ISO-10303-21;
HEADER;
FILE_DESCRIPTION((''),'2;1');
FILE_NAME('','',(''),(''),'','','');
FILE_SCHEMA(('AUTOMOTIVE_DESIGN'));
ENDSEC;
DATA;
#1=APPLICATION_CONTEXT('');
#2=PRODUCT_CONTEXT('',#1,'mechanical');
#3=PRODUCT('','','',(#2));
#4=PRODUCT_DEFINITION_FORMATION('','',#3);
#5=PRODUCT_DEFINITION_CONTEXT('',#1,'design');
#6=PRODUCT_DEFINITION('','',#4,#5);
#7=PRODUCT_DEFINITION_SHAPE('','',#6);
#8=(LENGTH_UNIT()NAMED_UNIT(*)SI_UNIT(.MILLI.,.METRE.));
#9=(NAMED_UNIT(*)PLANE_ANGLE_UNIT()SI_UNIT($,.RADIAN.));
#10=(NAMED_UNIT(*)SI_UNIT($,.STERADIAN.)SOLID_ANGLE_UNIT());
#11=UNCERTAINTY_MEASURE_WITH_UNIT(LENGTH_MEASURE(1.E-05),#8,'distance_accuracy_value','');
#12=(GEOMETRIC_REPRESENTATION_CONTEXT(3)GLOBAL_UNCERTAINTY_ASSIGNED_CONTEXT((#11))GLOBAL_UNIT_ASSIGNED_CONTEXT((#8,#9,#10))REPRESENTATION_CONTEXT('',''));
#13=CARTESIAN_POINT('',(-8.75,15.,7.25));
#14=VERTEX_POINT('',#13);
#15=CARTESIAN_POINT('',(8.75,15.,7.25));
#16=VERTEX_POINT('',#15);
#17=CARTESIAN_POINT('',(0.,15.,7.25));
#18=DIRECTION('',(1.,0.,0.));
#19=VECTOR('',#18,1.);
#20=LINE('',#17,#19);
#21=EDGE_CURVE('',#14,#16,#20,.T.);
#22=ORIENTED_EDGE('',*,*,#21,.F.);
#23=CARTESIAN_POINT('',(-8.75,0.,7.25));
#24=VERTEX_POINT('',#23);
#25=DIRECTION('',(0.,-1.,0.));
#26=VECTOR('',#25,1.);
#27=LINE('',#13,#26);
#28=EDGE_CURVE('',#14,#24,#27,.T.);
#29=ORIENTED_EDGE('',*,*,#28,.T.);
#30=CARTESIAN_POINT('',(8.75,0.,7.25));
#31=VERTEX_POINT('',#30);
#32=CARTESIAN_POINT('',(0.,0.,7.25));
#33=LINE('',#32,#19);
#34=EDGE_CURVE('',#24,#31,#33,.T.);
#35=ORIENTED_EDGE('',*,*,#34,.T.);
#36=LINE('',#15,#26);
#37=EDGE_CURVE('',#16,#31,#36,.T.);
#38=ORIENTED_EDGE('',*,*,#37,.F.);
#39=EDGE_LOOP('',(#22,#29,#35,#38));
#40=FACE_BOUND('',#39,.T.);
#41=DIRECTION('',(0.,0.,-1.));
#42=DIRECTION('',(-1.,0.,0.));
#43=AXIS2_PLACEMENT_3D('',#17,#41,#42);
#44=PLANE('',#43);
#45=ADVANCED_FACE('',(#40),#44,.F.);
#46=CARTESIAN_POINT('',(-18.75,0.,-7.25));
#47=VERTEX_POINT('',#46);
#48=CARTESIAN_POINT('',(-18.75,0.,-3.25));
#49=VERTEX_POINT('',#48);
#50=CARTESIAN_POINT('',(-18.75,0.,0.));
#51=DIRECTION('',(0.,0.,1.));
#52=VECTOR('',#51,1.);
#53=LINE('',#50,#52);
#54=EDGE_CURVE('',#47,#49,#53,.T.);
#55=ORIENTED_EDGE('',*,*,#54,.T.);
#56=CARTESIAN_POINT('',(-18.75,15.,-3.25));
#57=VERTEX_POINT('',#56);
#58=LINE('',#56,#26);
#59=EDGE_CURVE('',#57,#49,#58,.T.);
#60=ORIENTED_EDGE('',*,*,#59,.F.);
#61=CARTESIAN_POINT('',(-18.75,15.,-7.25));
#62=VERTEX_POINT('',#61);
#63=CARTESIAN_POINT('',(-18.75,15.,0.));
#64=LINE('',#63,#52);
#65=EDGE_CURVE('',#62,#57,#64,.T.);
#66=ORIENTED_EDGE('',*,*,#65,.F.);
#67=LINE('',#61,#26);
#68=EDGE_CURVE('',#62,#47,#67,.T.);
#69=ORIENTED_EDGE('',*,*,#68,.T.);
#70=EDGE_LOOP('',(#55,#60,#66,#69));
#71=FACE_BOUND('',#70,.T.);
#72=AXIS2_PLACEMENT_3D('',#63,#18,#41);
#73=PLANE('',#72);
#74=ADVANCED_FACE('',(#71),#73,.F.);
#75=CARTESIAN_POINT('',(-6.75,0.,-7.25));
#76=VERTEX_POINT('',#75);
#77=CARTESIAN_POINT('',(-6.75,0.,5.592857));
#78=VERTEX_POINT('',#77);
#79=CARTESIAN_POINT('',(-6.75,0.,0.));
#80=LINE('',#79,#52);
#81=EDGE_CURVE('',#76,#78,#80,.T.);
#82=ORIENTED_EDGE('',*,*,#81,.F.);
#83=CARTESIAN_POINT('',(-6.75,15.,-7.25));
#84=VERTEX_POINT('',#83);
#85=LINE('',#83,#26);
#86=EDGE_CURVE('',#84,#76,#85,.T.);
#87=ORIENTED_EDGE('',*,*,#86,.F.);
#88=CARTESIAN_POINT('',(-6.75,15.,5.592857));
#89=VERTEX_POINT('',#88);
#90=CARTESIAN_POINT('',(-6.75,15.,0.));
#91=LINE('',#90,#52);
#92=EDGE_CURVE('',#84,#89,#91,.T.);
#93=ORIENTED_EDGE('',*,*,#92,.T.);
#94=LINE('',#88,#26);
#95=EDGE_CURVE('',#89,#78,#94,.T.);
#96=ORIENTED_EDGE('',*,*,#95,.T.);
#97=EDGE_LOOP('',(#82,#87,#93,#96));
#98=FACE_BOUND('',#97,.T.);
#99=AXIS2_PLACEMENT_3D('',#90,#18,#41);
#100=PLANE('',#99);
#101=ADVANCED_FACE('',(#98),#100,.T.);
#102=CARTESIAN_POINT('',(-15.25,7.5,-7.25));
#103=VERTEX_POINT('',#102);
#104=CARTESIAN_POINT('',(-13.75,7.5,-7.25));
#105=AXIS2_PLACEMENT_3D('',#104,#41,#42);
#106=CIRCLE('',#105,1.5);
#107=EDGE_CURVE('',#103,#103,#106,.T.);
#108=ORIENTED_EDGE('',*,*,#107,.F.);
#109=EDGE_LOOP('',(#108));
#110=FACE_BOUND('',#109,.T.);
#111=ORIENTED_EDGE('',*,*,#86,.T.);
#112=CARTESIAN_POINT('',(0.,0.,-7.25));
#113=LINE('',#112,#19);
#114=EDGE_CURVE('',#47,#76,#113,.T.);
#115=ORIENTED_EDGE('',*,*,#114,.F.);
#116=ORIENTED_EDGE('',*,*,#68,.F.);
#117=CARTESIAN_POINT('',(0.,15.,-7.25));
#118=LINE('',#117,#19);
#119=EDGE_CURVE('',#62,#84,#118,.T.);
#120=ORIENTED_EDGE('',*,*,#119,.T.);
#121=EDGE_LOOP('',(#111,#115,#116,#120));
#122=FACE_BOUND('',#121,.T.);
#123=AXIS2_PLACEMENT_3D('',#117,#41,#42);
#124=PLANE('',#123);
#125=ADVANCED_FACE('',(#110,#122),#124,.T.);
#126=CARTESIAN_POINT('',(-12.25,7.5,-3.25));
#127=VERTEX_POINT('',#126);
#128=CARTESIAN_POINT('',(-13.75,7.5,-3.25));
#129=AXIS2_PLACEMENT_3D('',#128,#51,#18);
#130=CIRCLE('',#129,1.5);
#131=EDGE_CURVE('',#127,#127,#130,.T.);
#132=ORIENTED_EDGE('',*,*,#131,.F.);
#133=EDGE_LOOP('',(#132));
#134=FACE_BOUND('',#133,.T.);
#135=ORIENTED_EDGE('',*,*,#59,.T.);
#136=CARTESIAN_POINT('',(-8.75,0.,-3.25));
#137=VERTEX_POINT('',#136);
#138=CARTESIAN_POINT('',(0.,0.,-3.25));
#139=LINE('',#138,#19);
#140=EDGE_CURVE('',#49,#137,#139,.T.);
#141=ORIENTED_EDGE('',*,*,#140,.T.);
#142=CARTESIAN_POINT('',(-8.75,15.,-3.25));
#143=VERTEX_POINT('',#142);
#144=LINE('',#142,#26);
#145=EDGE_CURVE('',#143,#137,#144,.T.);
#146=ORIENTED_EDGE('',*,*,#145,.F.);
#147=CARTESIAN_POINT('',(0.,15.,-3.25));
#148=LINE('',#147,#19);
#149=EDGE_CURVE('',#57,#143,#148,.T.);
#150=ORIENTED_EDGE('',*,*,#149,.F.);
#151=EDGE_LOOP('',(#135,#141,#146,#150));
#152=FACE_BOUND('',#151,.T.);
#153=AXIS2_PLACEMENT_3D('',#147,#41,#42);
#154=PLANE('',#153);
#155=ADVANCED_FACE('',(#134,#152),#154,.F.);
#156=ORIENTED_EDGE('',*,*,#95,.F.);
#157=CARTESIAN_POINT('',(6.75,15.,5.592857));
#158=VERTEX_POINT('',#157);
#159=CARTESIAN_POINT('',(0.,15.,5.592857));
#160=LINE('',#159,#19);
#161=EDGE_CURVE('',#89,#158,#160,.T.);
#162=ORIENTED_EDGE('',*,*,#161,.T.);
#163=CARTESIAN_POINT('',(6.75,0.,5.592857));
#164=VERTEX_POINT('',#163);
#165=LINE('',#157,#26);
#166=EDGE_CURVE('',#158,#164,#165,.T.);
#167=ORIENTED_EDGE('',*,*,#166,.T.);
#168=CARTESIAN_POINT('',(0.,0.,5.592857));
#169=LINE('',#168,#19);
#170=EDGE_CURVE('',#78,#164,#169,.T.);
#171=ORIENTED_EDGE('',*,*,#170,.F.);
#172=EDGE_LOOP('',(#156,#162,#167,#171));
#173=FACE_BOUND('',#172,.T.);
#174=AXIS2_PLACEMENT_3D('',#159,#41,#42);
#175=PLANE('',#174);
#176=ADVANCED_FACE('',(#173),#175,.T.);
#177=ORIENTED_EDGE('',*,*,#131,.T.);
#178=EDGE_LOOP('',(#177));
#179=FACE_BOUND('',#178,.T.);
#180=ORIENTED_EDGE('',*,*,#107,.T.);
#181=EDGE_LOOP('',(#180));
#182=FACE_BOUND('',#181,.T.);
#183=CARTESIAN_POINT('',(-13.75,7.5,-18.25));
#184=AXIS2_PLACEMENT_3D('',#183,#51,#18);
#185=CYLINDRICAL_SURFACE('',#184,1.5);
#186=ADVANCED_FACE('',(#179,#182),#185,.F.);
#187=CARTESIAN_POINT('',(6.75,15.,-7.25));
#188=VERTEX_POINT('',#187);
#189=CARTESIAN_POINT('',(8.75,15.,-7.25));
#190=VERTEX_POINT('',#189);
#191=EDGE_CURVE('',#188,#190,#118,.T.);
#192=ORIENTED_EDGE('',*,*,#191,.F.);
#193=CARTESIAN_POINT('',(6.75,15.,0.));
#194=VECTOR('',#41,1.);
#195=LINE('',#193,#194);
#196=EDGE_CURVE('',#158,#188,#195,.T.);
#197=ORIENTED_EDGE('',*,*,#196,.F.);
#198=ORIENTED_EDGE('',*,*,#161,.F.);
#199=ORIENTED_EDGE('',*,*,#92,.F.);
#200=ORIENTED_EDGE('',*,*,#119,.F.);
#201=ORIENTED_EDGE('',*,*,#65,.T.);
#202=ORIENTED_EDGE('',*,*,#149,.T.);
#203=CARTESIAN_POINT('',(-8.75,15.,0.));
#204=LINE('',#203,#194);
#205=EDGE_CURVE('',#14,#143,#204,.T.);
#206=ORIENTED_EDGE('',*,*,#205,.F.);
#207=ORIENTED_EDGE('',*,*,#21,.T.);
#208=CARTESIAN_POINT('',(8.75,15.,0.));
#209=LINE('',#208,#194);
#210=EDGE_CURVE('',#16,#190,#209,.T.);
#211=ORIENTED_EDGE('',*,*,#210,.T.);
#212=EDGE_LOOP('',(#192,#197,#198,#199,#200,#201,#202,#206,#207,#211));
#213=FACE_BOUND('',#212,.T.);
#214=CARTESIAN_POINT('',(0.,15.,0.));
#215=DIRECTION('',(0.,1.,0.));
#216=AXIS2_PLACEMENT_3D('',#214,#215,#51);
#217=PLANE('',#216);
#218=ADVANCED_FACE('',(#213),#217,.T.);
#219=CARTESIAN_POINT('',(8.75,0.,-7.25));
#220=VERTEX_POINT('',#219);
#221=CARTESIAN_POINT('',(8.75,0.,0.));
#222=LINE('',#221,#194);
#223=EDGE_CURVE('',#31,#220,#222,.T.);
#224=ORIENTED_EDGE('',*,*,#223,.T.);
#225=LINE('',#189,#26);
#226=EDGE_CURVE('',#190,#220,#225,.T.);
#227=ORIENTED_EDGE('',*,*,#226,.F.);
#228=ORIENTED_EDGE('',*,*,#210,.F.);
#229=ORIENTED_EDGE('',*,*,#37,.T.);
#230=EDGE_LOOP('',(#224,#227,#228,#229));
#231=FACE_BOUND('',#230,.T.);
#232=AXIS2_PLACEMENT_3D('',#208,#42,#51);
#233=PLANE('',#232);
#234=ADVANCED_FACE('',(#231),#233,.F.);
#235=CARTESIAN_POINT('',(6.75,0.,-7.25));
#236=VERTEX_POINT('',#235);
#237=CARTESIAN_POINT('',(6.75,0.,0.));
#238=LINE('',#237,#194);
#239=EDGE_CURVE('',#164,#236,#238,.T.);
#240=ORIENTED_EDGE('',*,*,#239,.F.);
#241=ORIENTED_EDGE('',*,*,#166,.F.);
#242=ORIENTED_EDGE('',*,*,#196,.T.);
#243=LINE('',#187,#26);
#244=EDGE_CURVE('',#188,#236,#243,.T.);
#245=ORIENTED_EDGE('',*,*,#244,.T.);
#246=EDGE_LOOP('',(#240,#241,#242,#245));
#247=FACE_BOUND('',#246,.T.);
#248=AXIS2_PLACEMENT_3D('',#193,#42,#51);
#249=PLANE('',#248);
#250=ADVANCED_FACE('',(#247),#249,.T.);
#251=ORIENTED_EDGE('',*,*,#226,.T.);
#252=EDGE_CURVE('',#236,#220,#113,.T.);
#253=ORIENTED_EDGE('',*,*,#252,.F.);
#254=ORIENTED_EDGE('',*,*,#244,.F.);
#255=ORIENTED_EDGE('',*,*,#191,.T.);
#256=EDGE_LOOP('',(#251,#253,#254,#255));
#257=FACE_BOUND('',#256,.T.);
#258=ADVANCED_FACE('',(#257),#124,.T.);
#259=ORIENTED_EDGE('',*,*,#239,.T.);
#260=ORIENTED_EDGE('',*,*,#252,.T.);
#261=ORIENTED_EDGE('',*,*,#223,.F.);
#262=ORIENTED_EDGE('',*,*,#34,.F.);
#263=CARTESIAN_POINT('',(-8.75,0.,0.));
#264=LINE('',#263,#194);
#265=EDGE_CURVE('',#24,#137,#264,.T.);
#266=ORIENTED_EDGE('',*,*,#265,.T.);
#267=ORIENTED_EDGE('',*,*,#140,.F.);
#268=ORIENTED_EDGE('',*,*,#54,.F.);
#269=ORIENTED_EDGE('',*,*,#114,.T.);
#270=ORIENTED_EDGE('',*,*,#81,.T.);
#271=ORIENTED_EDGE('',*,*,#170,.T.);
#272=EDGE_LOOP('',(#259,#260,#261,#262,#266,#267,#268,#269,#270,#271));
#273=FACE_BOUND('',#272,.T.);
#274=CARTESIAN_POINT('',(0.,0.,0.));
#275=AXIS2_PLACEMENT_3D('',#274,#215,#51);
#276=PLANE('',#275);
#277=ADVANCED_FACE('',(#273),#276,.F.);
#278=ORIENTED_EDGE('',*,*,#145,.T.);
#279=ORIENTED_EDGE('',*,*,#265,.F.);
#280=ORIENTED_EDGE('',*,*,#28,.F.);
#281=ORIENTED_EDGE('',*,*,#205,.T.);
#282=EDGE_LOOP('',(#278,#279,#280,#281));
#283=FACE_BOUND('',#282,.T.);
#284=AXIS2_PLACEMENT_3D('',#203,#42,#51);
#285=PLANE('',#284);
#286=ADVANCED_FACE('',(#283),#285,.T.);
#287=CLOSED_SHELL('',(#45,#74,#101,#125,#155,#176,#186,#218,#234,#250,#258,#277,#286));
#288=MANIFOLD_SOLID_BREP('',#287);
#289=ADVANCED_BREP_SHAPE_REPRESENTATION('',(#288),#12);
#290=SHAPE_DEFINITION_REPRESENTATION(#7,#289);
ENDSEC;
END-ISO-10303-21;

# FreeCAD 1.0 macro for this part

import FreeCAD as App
import Part
import Sketcher

V = App.Vector


def add_polygon(sketch, points):
    """Adds a closed chain of lines whose ends are joined by coincident constraints."""
    first, n = sketch.GeometryCount, len(points)
    for a, b in zip(points, points[1:] + points[:1]):
        sketch.addGeometry(Part.LineSegment(App.Vector(*a, 0), App.Vector(*b, 0)), False)
    for i in range(n):
        sketch.addConstraint(Sketcher.Constraint("Coincident", first + i, 2, first + (i + 1) % n, 1))

doc = App.newDocument("Part")
body = doc.addObject("PartDesign::Body", "Body")

# Sketch on XZ plane
sketch1 = body.newObject("Sketcher::SketchObject", "Sketch")
sketch1.AttachmentSupport = (doc.getObject("XZ_Plane"), [""])
sketch1.MapMode = "FlatFace"
add_polygon(sketch1, [(-8.75, 7.25), (8.75, 7.25), (8.75, -7.25), (6.75, -7.25), (6.75, 5.592857), (-6.75, 5.592857), (-6.75, -7.25), (-18.75, -7.25), (-18.75, -3.25), (-8.75, -3.25)])  # lines 0-9
sketch1.addConstraint(Sketcher.Constraint("Horizontal", 0))
sketch1.addConstraint(Sketcher.Constraint("Vertical", 1))
sketch1.addConstraint(Sketcher.Constraint("Horizontal", 2))
sketch1.addConstraint(Sketcher.Constraint("Vertical", 3))
sketch1.addConstraint(Sketcher.Constraint("Horizontal", 4))
sketch1.addConstraint(Sketcher.Constraint("Vertical", 5))
sketch1.addConstraint(Sketcher.Constraint("Horizontal", 6))
sketch1.addConstraint(Sketcher.Constraint("Vertical", 7))
sketch1.addConstraint(Sketcher.Constraint("Horizontal", 8))
sketch1.addConstraint(Sketcher.Constraint("Vertical", 9))
sketch1.addConstraint(Sketcher.Constraint("Symmetric", 1, 2, 9, 2, -1, 1))
sketch1.addConstraint(Sketcher.Constraint("Symmetric", 2, 2, 5, 2, -2))
sketch1.addConstraint(Sketcher.Constraint("DistanceX", 2, 2, 2, 1, 2.0))
sketch1.addConstraint(Sketcher.Constraint("DistanceX", 6, 2, 6, 1, 12.0))
sketch1.addConstraint(Sketcher.Constraint("DistanceY", 7, 1, 7, 2, 4.0))
sketch1.addConstraint(Sketcher.Constraint("DistanceX", 0, 1, 0, 2, 17.5))
sketch1.addConstraint(Sketcher.Constraint("DistanceY", 1, 2, 1, 1, 14.5))
sketch1.addConstraint(Sketcher.Constraint("DistanceY", 3, 1, 3, 2, 12.842857))
pad1 = body.newObject("PartDesign::Pad", "Pad")
pad1.Profile = sketch1
pad1.Length = 15
pad1.Reversed = True

# Sketch on XY plane
sketch2 = body.newObject("Sketcher::SketchObject", "Sketch001")
sketch2.AttachmentSupport = (doc.getObject("XY_Plane"), [""])
sketch2.MapMode = "FlatFace"
sketch2.AttachmentOffset = App.Placement(V(0, 0, -3.25), App.Rotation())
sketch2.addGeometry(Part.Circle(V(-13.75, 7.5, 0), V(0, 0, 1), 1.5), False)
sketch2.addConstraint(Sketcher.Constraint("Diameter", 0, 3.0))
sketch2.addConstraint(Sketcher.Constraint("DistanceY", -1, 1, 0, 3, 7.5))
sketch2.addConstraint(Sketcher.Constraint("DistanceX", 0, 3, -1, 1, 13.75))
pocket1 = body.newObject("PartDesign::Pocket", "Pocket")
pocket1.Profile = sketch2
pocket1.Length = 15

doc.recompute()
